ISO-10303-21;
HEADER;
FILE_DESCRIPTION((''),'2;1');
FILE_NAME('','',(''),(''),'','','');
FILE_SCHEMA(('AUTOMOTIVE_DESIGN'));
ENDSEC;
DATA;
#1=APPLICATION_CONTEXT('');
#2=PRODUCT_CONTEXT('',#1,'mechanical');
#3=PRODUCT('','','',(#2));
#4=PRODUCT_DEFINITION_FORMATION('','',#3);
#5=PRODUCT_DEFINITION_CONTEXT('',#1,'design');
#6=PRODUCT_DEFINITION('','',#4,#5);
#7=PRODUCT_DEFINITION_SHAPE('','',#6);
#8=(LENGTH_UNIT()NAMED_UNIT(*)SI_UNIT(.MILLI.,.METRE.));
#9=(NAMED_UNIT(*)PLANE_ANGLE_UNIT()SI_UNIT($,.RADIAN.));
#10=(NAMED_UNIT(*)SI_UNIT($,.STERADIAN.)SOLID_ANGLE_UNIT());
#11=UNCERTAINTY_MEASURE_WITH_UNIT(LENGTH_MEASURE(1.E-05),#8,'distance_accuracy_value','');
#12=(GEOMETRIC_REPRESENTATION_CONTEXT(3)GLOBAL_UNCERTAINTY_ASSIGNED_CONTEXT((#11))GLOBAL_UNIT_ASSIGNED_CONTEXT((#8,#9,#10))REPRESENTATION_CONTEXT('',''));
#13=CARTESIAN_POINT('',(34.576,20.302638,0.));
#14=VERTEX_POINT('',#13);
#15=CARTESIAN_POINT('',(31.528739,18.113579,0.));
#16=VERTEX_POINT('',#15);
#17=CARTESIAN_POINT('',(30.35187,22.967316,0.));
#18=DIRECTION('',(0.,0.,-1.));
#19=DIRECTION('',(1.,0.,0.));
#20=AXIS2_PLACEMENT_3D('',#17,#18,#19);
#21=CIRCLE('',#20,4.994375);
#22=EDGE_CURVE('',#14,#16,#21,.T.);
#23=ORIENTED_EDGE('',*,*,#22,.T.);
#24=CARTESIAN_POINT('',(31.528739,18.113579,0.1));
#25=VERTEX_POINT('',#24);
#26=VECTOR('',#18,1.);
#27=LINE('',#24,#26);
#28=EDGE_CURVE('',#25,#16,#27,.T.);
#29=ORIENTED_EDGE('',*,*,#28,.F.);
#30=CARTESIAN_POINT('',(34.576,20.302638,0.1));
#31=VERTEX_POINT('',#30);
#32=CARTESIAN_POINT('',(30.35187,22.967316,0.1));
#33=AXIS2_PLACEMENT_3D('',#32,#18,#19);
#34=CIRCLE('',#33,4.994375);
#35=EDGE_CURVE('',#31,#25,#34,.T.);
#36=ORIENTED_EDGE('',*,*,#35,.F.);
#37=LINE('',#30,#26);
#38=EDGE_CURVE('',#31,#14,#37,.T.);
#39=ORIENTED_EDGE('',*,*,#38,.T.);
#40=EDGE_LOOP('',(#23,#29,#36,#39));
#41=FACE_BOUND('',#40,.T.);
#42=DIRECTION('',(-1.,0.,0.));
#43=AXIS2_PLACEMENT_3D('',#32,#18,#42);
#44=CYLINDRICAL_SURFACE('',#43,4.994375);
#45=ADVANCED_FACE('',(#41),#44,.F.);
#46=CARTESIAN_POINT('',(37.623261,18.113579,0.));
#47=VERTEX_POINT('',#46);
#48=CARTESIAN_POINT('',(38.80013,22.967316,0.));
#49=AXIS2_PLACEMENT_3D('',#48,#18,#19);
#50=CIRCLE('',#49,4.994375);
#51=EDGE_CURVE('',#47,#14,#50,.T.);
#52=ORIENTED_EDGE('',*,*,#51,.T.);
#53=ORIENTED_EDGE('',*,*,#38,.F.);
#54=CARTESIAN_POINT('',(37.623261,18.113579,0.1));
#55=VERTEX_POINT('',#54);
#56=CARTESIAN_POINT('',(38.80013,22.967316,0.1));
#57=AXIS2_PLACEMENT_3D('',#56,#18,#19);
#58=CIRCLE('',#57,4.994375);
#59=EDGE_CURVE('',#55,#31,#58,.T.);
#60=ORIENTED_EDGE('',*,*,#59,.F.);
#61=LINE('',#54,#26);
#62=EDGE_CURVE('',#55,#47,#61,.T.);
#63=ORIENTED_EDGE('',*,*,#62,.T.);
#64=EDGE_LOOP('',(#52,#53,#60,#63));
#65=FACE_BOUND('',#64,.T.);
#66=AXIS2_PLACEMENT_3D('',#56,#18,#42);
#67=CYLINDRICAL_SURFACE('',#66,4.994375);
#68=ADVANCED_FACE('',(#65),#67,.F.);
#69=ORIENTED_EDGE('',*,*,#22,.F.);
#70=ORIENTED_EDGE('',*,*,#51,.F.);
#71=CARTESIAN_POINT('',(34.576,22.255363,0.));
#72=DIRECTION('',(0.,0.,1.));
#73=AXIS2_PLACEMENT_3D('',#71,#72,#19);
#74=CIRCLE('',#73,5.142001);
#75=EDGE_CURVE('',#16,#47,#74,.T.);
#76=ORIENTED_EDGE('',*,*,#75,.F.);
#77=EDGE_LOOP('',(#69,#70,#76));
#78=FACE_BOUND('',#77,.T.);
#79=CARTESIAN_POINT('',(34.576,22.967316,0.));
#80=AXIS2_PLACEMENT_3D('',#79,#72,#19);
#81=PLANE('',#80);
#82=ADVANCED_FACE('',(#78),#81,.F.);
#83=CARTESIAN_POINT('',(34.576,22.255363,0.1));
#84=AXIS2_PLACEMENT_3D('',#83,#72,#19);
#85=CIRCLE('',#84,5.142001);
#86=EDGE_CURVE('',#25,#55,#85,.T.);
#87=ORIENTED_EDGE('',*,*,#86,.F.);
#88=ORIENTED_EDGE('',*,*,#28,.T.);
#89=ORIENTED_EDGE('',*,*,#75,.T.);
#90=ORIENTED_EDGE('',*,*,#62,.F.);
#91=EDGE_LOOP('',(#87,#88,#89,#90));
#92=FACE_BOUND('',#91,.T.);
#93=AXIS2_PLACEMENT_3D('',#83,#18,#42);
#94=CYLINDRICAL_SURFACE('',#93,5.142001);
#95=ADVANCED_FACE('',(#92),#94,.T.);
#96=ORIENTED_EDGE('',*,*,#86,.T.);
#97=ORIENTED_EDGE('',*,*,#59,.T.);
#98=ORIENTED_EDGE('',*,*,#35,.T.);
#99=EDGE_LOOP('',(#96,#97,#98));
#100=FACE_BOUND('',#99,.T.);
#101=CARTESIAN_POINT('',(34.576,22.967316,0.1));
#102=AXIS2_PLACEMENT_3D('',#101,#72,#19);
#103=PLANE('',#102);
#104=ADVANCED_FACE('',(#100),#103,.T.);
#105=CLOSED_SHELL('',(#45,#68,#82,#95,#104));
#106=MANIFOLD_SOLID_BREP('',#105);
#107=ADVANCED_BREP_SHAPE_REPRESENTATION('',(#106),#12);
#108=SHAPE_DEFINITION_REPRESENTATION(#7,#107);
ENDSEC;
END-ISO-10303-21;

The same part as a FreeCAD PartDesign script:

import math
import FreeCAD as App
import Part
import Sketcher
from FreeCAD import Vector
Q = App.Units.Quantity

doc = App.newDocument("Part")
params = doc.addObject("Spreadsheet::Sheet", "Params")
for row, (alias, value) in enumerate([
    ("pad1_length", "0.1 mm"),
], start=1):
    params.set(f"A{row}", alias)
    params.set(f"B{row}", "=" + value)
    params.setAlias(f"B{row}", alias)

body = doc.addObject("PartDesign::Body", "Body")

# Sketch on XY plane
sketch1 = body.newObject("Sketcher::SketchObject", "Sketch")
sketch1.AttachmentSupport = (doc.getObject("XY_Plane"), [""])
sketch1.MapMode = "FlatFace"
sketch1.addGeometry([
    Part.ArcOfCircle(Part.Circle(Vector(34.576, 22.255363, 0), Vector(0, 0, 1), 5.142001), math.radians(-126.34327), math.radians(-53.65673)),
    Part.ArcOfCircle(Part.Circle(Vector(38.80013, 22.967316, 0), Vector(0, 0, 1), 4.994375), math.radians(-147.755331), math.radians(-103.62928)),
    Part.ArcOfCircle(Part.Circle(Vector(30.35187, 22.967316, 0), Vector(0, 0, 1), 4.994375), math.radians(-76.37072), math.radians(-32.244669)),
], False)
sketch1.addConstraint([
    Sketcher.Constraint("Coincident", 0, 2, 1, 2),
    Sketcher.Constraint("Coincident", 1, 1, 2, 2),
    Sketcher.Constraint("Coincident", 2, 1, 0, 1),
    Sketcher.Constraint("Equal", 1, 2),
    Sketcher.Constraint("Horizontal", 1, 3, 2, 3),
    Sketcher.Constraint("Horizontal", 0, 2, 2, 1),
    Sketcher.Constraint("Radius", 0, Q("5.142001 mm")),
    Sketcher.Constraint("DistanceX", -1, 1, 0, 3, Q("34.576 mm")),
    Sketcher.Constraint("Radius", 1, Q("4.994375 mm")),
    Sketcher.Constraint("DistanceX", -1, 1, 1, 3, Q("38.80013 mm")),
    Sketcher.Constraint("DistanceX", -1, 1, 0, 2, Q("37.623261 mm")),
    Sketcher.Constraint("DistanceY", -1, 1, 0, 2, Q("18.113579 mm")),
])
pad1 = body.newObject("PartDesign::Pad", "Pad")
pad1.Profile = sketch1
pad1.setExpression("Length", "Params.pad1_length")

doc.recompute()
